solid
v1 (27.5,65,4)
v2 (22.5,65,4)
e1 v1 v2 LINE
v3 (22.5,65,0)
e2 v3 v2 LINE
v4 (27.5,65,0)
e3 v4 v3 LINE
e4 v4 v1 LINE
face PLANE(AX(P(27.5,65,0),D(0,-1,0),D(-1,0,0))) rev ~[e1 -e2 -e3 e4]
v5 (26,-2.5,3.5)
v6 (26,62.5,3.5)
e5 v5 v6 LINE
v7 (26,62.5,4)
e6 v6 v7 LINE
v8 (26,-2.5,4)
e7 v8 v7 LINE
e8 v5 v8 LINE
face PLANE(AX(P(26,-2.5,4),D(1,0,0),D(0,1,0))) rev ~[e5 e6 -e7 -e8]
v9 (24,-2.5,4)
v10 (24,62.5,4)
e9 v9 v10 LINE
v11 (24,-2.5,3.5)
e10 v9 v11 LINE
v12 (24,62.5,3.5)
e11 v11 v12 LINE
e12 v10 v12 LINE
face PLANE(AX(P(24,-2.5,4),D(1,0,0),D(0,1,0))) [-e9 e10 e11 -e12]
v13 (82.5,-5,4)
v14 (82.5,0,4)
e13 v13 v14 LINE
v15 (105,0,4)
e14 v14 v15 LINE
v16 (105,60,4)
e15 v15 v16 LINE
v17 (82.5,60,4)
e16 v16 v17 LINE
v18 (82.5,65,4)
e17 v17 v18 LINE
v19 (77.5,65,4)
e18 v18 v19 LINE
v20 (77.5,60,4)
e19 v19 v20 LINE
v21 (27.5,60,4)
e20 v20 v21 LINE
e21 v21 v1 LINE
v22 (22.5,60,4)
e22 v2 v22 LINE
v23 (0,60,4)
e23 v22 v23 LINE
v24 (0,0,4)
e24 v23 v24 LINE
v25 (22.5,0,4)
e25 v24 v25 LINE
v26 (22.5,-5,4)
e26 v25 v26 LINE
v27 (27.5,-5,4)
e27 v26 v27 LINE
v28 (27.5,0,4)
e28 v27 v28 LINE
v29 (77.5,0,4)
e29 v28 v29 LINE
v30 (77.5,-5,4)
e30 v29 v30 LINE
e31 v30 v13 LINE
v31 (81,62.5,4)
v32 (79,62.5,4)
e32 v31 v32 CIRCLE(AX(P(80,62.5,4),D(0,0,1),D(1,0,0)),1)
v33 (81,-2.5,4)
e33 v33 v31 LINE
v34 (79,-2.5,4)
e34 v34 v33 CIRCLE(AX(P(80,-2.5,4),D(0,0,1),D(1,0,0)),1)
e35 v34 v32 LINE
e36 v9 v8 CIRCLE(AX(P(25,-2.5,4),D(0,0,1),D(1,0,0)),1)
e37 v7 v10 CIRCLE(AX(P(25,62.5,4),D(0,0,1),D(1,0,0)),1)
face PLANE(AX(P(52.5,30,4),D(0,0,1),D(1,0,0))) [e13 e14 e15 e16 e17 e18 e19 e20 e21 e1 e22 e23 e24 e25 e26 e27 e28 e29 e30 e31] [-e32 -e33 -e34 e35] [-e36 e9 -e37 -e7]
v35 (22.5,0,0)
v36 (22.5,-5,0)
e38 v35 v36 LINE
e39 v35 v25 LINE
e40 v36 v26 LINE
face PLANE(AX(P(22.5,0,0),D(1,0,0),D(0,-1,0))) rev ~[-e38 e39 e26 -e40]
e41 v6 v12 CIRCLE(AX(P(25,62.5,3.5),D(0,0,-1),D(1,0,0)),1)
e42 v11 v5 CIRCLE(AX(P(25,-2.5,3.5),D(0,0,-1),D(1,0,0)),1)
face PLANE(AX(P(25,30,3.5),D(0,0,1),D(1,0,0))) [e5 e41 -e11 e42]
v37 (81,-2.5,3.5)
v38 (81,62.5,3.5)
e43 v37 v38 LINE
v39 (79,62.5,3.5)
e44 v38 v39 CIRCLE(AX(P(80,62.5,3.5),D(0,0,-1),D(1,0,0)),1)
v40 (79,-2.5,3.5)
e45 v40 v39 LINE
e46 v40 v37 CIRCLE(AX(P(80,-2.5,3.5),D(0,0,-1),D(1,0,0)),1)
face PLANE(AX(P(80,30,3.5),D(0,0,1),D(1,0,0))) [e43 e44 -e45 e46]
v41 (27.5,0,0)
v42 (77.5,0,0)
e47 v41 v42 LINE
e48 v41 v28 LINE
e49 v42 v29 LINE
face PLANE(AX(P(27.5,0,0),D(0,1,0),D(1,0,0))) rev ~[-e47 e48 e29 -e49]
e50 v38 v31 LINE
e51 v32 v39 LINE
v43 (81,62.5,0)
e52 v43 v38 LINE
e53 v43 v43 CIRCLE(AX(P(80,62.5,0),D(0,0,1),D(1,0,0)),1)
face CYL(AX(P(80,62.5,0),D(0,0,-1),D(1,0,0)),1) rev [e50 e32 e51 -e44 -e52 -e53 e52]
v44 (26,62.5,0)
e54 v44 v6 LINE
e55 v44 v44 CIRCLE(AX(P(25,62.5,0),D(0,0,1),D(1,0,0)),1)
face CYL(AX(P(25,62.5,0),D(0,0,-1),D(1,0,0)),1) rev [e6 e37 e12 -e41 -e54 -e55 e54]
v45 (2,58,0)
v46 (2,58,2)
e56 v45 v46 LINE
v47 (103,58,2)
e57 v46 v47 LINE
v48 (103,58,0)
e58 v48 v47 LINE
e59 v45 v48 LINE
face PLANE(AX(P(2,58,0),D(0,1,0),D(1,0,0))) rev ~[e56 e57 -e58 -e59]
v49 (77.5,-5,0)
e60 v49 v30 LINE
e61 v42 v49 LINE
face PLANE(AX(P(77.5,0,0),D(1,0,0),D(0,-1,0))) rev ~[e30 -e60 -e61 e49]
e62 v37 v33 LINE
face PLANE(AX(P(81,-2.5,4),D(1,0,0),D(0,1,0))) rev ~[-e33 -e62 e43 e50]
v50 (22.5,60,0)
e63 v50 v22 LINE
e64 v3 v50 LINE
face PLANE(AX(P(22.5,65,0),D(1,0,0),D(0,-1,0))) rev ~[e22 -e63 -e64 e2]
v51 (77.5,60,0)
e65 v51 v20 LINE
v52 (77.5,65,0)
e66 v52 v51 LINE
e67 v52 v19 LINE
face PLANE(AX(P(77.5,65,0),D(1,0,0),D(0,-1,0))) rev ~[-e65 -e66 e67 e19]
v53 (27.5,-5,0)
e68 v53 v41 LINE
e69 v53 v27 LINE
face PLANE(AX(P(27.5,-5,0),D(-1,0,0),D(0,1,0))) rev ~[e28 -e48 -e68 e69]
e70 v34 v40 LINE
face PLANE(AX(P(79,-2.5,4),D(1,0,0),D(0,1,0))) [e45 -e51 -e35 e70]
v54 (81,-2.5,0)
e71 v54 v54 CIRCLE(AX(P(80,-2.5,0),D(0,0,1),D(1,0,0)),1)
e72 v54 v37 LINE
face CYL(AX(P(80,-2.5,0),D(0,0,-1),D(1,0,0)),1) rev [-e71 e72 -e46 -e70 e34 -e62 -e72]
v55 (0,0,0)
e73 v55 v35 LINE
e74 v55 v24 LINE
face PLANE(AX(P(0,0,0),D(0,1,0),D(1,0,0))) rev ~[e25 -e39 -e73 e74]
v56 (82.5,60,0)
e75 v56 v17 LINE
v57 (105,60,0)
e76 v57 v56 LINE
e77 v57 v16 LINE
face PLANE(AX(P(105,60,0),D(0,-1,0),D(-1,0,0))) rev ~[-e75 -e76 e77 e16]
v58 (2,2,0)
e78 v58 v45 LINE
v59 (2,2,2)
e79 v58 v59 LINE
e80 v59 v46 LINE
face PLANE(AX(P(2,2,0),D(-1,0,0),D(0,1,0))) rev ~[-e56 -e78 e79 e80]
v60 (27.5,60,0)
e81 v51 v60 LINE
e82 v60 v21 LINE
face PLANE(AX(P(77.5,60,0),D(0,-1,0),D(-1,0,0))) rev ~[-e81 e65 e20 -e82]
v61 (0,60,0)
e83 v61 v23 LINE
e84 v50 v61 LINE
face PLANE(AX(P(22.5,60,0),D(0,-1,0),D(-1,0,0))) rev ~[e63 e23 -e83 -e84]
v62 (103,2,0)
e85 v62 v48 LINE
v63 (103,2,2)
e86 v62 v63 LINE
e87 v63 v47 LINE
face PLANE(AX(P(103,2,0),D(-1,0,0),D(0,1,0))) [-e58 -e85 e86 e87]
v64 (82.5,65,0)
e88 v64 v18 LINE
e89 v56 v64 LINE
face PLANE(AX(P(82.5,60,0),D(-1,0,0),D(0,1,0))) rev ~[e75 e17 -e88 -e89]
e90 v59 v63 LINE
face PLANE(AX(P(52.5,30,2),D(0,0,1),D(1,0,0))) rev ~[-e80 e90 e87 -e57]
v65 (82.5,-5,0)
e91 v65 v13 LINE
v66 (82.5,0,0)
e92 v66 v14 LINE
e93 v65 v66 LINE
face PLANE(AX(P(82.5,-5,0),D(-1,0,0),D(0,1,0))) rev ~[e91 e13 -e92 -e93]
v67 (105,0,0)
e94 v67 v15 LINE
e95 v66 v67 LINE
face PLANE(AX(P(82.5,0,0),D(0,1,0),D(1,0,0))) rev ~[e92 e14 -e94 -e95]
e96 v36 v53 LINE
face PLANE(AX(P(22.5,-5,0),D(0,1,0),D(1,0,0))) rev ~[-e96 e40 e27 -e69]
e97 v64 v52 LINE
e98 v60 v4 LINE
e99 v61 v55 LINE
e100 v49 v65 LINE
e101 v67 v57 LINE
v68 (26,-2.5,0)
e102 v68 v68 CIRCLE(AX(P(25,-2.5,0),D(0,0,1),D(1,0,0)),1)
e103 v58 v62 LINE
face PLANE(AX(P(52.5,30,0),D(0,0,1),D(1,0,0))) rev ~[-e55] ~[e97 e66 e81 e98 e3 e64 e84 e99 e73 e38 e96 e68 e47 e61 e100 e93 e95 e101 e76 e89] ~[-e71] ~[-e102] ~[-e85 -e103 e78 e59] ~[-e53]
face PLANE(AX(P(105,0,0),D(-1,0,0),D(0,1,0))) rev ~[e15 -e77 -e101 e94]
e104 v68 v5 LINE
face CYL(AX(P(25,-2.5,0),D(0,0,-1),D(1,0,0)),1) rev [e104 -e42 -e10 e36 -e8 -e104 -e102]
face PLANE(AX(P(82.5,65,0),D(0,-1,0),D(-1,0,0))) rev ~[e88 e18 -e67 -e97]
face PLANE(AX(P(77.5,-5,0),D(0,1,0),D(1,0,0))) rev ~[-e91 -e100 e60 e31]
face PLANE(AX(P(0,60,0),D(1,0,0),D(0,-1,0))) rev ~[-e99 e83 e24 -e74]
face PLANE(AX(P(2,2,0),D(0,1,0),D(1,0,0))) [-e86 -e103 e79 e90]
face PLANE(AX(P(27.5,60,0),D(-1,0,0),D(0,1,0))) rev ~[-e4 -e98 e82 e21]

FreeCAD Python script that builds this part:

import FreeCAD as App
import Part
import Sketcher

doc = App.newDocument("Part")
params = doc.addObject("Spreadsheet::Sheet", "Params")
for row, (alias, value) in enumerate([
    ("sketch1_diameter", "2 mm"),
    ("sketch1_width", "5 mm"),
    ("sketch1_width2", "50 mm"),
    ("sketch1_height", "60 mm"),
    ("sketch1_width3", "22.5 mm"),
    ("pad1_length", "4 mm"),
    ("sketch2_width", "101 mm"),
    ("sketch2_height", "56 mm"),
    ("pocket1_length", "2 mm"),
    ("sketch3_width", "2 mm"),
    ("sketch3_height", "65 mm"),
    ("pocket2_length", "0.5 mm"),
], start=1):
    params.set(f"A{row}", alias)
    params.set(f"B{row}", "=" + value)
    params.setAlias(f"B{row}", alias)

body = doc.addObject("PartDesign::Body", "Body")

# Sketch on XY plane
sketch1 = body.newObject("Sketcher::SketchObject", "Sketch")
sketch1.AttachmentSupport = (doc.getObject("XY_Plane"), [""])
sketch1.MapMode = "FlatFace"
sketch1.addGeometry(Part.LineSegment(App.Vector(105, 0, 0), App.Vector(105, 60, 0)), False)
sketch1.addGeometry(Part.LineSegment(App.Vector(105, 60, 0), App.Vector(82.5, 60, 0)), False)
sketch1.addGeometry(Part.LineSegment(App.Vector(82.5, 60, 0), App.Vector(82.5, 65, 0)), False)
sketch1.addGeometry(Part.LineSegment(App.Vector(82.5, 65, 0), App.Vector(77.5, 65, 0)), False)
sketch1.addGeometry(Part.LineSegment(App.Vector(77.5, 65, 0), App.Vector(77.5, 60, 0)), False)
sketch1.addGeometry(Part.LineSegment(App.Vector(77.5, 60, 0), App.Vector(27.5, 60, 0)), False)
sketch1.addGeometry(Part.LineSegment(App.Vector(27.5, 60, 0), App.Vector(27.5, 65, 0)), False)
sketch1.addGeometry(Part.LineSegment(App.Vector(27.5, 65, 0), App.Vector(22.5, 65, 0)), False)
sketch1.addGeometry(Part.LineSegment(App.Vector(22.5, 65, 0), App.Vector(22.5, 60, 0)), False)
sketch1.addGeometry(Part.LineSegment(App.Vector(22.5, 60, 0), App.Vector(0, 60, 0)), False)
sketch1.addGeometry(Part.LineSegment(App.Vector(0, 60, 0), App.Vector(0, 0, 0)), False)
sketch1.addGeometry(Part.LineSegment(App.Vector(0, 0, 0), App.Vector(22.5, 0, 0)), False)
sketch1.addGeometry(Part.LineSegment(App.Vector(22.5, 0, 0), App.Vector(22.5, -5, 0)), False)
sketch1.addGeometry(Part.LineSegment(App.Vector(22.5, -5, 0), App.Vector(27.5, -5, 0)), False)
sketch1.addGeometry(Part.LineSegment(App.Vector(27.5, -5, 0), App.Vector(27.5, 0, 0)), False)
sketch1.addGeometry(Part.LineSegment(App.Vector(27.5, 0, 0), App.Vector(77.5, 0, 0)), False)
sketch1.addGeometry(Part.LineSegment(App.Vector(77.5, 0, 0), App.Vector(77.5, -5, 0)), False)
sketch1.addGeometry(Part.LineSegment(App.Vector(77.5, -5, 0), App.Vector(82.5, -5, 0)), False)
sketch1.addGeometry(Part.LineSegment(App.Vector(82.5, -5, 0), App.Vector(82.5, 0, 0)), False)
sketch1.addGeometry(Part.LineSegment(App.Vector(82.5, 0, 0), App.Vector(105, 0, 0)), False)
sketch1.addGeometry(Part.Circle(App.Vector(25, -2.5, 0), App.Vector(0, 0, 1), 1), False)
sketch1.addGeometry(Part.Circle(App.Vector(80, -2.5, 0), App.Vector(0, 0, 1), 1), False)
sketch1.addGeometry(Part.Circle(App.Vector(25, 62.5, 0), App.Vector(0, 0, 1), 1), False)
sketch1.addGeometry(Part.Circle(App.Vector(80, 62.5, 0), App.Vector(0, 0, 1), 1), False)
sketch1.addConstraint(Sketcher.Constraint("Coincident", 0, 2, 1, 1))
sketch1.addConstraint(Sketcher.Constraint("Coincident", 1, 2, 2, 1))
sketch1.addConstraint(Sketcher.Constraint("Coincident", 2, 2, 3, 1))
sketch1.addConstraint(Sketcher.Constraint("Coincident", 3, 2, 4, 1))
sketch1.addConstraint(Sketcher.Constraint("Coincident", 4, 2, 5, 1))
sketch1.addConstraint(Sketcher.Constraint("Coincident", 5, 2, 6, 1))
sketch1.addConstraint(Sketcher.Constraint("Coincident", 6, 2, 7, 1))
sketch1.addConstraint(Sketcher.Constraint("Coincident", 7, 2, 8, 1))
sketch1.addConstraint(Sketcher.Constraint("Coincident", 8, 2, 9, 1))
sketch1.addConstraint(Sketcher.Constraint("Coincident", 9, 2, 10, 1))
sketch1.addConstraint(Sketcher.Constraint("Coincident", 10, 2, 11, 1))
sketch1.addConstraint(Sketcher.Constraint("Coincident", 11, 2, 12, 1))
sketch1.addConstraint(Sketcher.Constraint("Coincident", 12, 2, 13, 1))
sketch1.addConstraint(Sketcher.Constraint("Coincident", 13, 2, 14, 1))
sketch1.addConstraint(Sketcher.Constraint("Coincident", 14, 2, 15, 1))
sketch1.addConstraint(Sketcher.Constraint("Coincident", 15, 2, 16, 1))
sketch1.addConstraint(Sketcher.Constraint("Coincident", 16, 2, 17, 1))
sketch1.addConstraint(Sketcher.Constraint("Coincident", 17, 2, 18, 1))
sketch1.addConstraint(Sketcher.Constraint("Coincident", 18, 2, 19, 1))
sketch1.addConstraint(Sketcher.Constraint("Coincident", 19, 2, 0, 1))
sketch1.addConstraint(Sketcher.Constraint("Vertical", 0))
sketch1.addConstraint(Sketcher.Constraint("Horizontal", 1))
sketch1.addConstraint(Sketcher.Constraint("Vertical", 2))
sketch1.addConstraint(Sketcher.Constraint("Horizontal", 3))
sketch1.addConstraint(Sketcher.Constraint("Vertical", 4))
sketch1.addConstraint(Sketcher.Constraint("Horizontal", 5))
sketch1.addConstraint(Sketcher.Constraint("Vertical", 6))
sketch1.addConstraint(Sketcher.Constraint("Horizontal", 7))
sketch1.addConstraint(Sketcher.Constraint("Vertical", 8))
sketch1.addConstraint(Sketcher.Constraint("Horizontal", 9))
sketch1.addConstraint(Sketcher.Constraint("Vertical", 10))
sketch1.addConstraint(Sketcher.Constraint("Horizontal", 11))
sketch1.addConstraint(Sketcher.Constraint("Vertical", 12))
sketch1.addConstraint(Sketcher.Constraint("Horizontal", 13))
sketch1.addConstraint(Sketcher.Constraint("Vertical", 14))
sketch1.addConstraint(Sketcher.Constraint("Horizontal", 15))
sketch1.addConstraint(Sketcher.Constraint("Vertical", 16))
sketch1.addConstraint(Sketcher.Constraint("Horizontal", 17))
sketch1.addConstraint(Sketcher.Constraint("Vertical", 18))
sketch1.addConstraint(Sketcher.Constraint("Horizontal", 19))
sketch1.addConstraint(Sketcher.Constraint("Coincident", 10, 2, -1, 1))
sketch1.addConstraint(Sketcher.Constraint("Equal", 20, 21))
sketch1.addConstraint(Sketcher.Constraint("Equal", 21, 22))
sketch1.addConstraint(Sketcher.Constraint("Equal", 22, 23))
sketch1.addConstraint(Sketcher.Constraint("PointOnObject", 14, 2, -1))
sketch1.addConstraint(Sketcher.Constraint("PointOnObject", 18, 2, -1))
sketch1.addConstraint(Sketcher.Constraint("Horizontal", 20, 3, 21, 3))
sketch1.addConstraint(Sketcher.Constraint("Horizontal", 22, 3, 23, 3))
sketch1.addConstraint(Sketcher.Constraint("Horizontal", 1, 2, 4, 2))
sketch1.addConstraint(Sketcher.Constraint("Horizontal", 3, 2, 6, 2))
sketch1.addConstraint(Sketcher.Constraint("Horizontal", 5, 2, 8, 2))
sketch1.addConstraint(Sketcher.Constraint("Horizontal", 13, 2, 16, 2))
sketch1.addConstraint(Sketcher.Constraint("Vertical", 20, 3, 22, 3))
sketch1.addConstraint(Sketcher.Constraint("Vertical", 21, 3, 23, 3))
sketch1.addConstraint(Sketcher.Constraint("Vertical", 8, 2, 11, 2))
sketch1.addConstraint(Sketcher.Constraint("Vertical", 6, 2, 13, 2))
sketch1.addConstraint(Sketcher.Constraint("Vertical", 4, 2, 15, 2))
sketch1.addConstraint(Sketcher.Constraint("Vertical", 2, 2, 17, 2))
sketch1.addConstraint(Sketcher.Constraint("Equal", 3, 7))
sketch1.addConstraint(Sketcher.Constraint("Equal", 1, 9))
sketch1.addConstraint(Sketcher.Constraint("Equal", 17, 2))
sketch1.addConstraint(Sketcher.Constraint("Equal", 8, 12))
sketch1.addConstraint(Sketcher.Constraint("Diameter", 20, 2.0))
sketch1.addConstraint(Sketcher.Constraint("DistanceX", 3, 2, 3, 1, 5.0))
sketch1.addConstraint(Sketcher.Constraint("DistanceX", 5, 2, 5, 1, 50.0))
sketch1.addConstraint(Sketcher.Constraint("DistanceY", 0, 1, 0, 2, 60.0))
sketch1.addConstraint(Sketcher.Constraint("DistanceX", 1, 2, 1, 1, 22.5))
sketch1.addConstraint(Sketcher.Constraint("DistanceX", -1, 1, 20, 3, 25.0))
sketch1.addConstraint(Sketcher.Constraint("DistanceX", -1, 1, 21, 3, 80.0))
sketch1.addConstraint(Sketcher.Constraint("DistanceY", 20, 3, 22, 3, 65.0))
sketch1.addConstraint(Sketcher.Constraint("DistanceY", 20, 3, -1, 1, 2.5))
sketch1.setExpression("Constraints[62]", "Params.sketch1_diameter")
sketch1.setExpression("Constraints[63]", "Params.sketch1_width")
sketch1.setExpression("Constraints[64]", "Params.sketch1_width2")
sketch1.setExpression("Constraints[65]", "Params.sketch1_height")
sketch1.setExpression("Constraints[66]", "Params.sketch1_width3")
pad1 = body.newObject("PartDesign::Pad", "Pad")
pad1.Profile = sketch1
pad1.setExpression("Length", "Params.pad1_length")

# Sketch on XY plane
sketch2 = body.newObject("Sketcher::SketchObject", "Sketch001")
sketch2.AttachmentSupport = (doc.getObject("XY_Plane"), [""])
sketch2.MapMode = "FlatFace"
sketch2.addGeometry(Part.LineSegment(App.Vector(2, 58, 0), App.Vector(2, 2, 0)), False)
sketch2.addGeometry(Part.LineSegment(App.Vector(2, 2, 0), App.Vector(103, 2, 0)), False)
sketch2.addGeometry(Part.LineSegment(App.Vector(103, 2, 0), App.Vector(103, 58, 0)), False)
sketch2.addGeometry(Part.LineSegment(App.Vector(103, 58, 0), App.Vector(2, 58, 0)), False)
sketch2.addConstraint(Sketcher.Constraint("Coincident", 0, 2, 1, 1))
sketch2.addConstraint(Sketcher.Constraint("Coincident", 1, 2, 2, 1))
sketch2.addConstraint(Sketcher.Constraint("Coincident", 2, 2, 3, 1))
sketch2.addConstraint(Sketcher.Constraint("Coincident", 3, 2, 0, 1))
sketch2.addConstraint(Sketcher.Constraint("Vertical", 0))
sketch2.addConstraint(Sketcher.Constraint("Horizontal", 1))
sketch2.addConstraint(Sketcher.Constraint("Vertical", 2))
sketch2.addConstraint(Sketcher.Constraint("Horizontal", 3))
sketch2.addConstraint(Sketcher.Constraint("DistanceX", 1, 1, 1, 2, 101.0))
sketch2.addConstraint(Sketcher.Constraint("DistanceY", 0, 2, 0, 1, 56.0))
sketch2.addConstraint(Sketcher.Constraint("DistanceX", -1, 1, 0, 2, 2.0))
sketch2.addConstraint(Sketcher.Constraint("DistanceY", -1, 1, 0, 2, 2.0))
sketch2.setExpression("Constraints[8]", "Params.sketch2_width")
sketch2.setExpression("Constraints[9]", "Params.sketch2_height")
pocket1 = body.newObject("PartDesign::Pocket", "Pocket")
pocket1.Profile = sketch2
pocket1.setExpression("Length", "Params.pocket1_length")
pocket1.Reversed = True

# Sketch on XY plane
sketch3 = body.newObject("Sketcher::SketchObject", "Sketch002")
sketch3.AttachmentSupport = (doc.getObject("XY_Plane"), [""])
sketch3.MapMode = "FlatFace"
sketch3.AttachmentOffset = App.Placement(App.Vector(0, 0, 4), App.Rotation())
sketch3.addGeometry(Part.LineSegment(App.Vector(24, 62.5, 0), App.Vector(24, -2.5, 0)), False)
sketch3.addGeometry(Part.LineSegment(App.Vector(24, -2.5, 0), App.Vector(26, -2.5, 0)), False)
sketch3.addGeometry(Part.LineSegment(App.Vector(26, -2.5, 0), App.Vector(26, 62.5, 0)), False)
sketch3.addGeometry(Part.LineSegment(App.Vector(26, 62.5, 0), App.Vector(24, 62.5, 0)), False)
sketch3.addGeometry(Part.LineSegment(App.Vector(79, 62.5, 0), App.Vector(79, -2.5, 0)), False)
sketch3.addGeometry(Part.LineSegment(App.Vector(79, -2.5, 0), App.Vector(81, -2.5, 0)), False)
sketch3.addGeometry(Part.LineSegment(App.Vector(81, -2.5, 0), App.Vector(81, 62.5, 0)), False)
sketch3.addGeometry(Part.LineSegment(App.Vector(81, 62.5, 0), App.Vector(79, 62.5, 0)), False)
sketch3.addConstraint(Sketcher.Constraint("Coincident", 0, 2, 1, 1))
sketch3.addConstraint(Sketcher.Constraint("Coincident", 1, 2, 2, 1))
sketch3.addConstraint(Sketcher.Constraint("Coincident", 2, 2, 3, 1))
sketch3.addConstraint(Sketcher.Constraint("Coincident", 3, 2, 0, 1))
sketch3.addConstraint(Sketcher.Constraint("Coincident", 4, 2, 5, 1))
sketch3.addConstraint(Sketcher.Constraint("Coincident", 5, 2, 6, 1))
sketch3.addConstraint(Sketcher.Constraint("Coincident", 6, 2, 7, 1))
sketch3.addConstraint(Sketcher.Constraint("Coincident", 7, 2, 4, 1))
sketch3.addConstraint(Sketcher.Constraint("Vertical", 0))
sketch3.addConstraint(Sketcher.Constraint("Horizontal", 1))
sketch3.addConstraint(Sketcher.Constraint("Vertical", 2))
sketch3.addConstraint(Sketcher.Constraint("Horizontal", 3))
sketch3.addConstraint(Sketcher.Constraint("Vertical", 4))
sketch3.addConstraint(Sketcher.Constraint("Horizontal", 5))
sketch3.addConstraint(Sketcher.Constraint("Vertical", 6))
sketch3.addConstraint(Sketcher.Constraint("Horizontal", 7))
sketch3.addConstraint(Sketcher.Constraint("Horizontal", 1, 2, 4, 2))
sketch3.addConstraint(Sketcher.Constraint("Horizontal", 3, 2, 6, 2))
sketch3.addConstraint(Sketcher.Constraint("Equal", 3, 5))
sketch3.addConstraint(Sketcher.Constraint("DistanceX", 1, 1, 1, 2, 2.0))
sketch3.addConstraint(Sketcher.Constraint("DistanceY", 0, 2, 0, 1, 65.0))
sketch3.addConstraint(Sketcher.Constraint("DistanceX", -1, 1, 0, 2, 24.0))
sketch3.addConstraint(Sketcher.Constraint("DistanceX", -1, 1, 4, 2, 79.0))
sketch3.addConstraint(Sketcher.Constraint("DistanceY", 0, 2, -1, 1, 2.5))
sketch3.setExpression("Constraints[19]", "Params.sketch3_width")
sketch3.setExpression("Constraints[20]", "Params.sketch3_height")
pocket2 = body.newObject("PartDesign::Pocket", "Pocket001")
pocket2.Profile = sketch3
pocket2.setExpression("Length", "Params.pocket2_length")

doc.recompute()
